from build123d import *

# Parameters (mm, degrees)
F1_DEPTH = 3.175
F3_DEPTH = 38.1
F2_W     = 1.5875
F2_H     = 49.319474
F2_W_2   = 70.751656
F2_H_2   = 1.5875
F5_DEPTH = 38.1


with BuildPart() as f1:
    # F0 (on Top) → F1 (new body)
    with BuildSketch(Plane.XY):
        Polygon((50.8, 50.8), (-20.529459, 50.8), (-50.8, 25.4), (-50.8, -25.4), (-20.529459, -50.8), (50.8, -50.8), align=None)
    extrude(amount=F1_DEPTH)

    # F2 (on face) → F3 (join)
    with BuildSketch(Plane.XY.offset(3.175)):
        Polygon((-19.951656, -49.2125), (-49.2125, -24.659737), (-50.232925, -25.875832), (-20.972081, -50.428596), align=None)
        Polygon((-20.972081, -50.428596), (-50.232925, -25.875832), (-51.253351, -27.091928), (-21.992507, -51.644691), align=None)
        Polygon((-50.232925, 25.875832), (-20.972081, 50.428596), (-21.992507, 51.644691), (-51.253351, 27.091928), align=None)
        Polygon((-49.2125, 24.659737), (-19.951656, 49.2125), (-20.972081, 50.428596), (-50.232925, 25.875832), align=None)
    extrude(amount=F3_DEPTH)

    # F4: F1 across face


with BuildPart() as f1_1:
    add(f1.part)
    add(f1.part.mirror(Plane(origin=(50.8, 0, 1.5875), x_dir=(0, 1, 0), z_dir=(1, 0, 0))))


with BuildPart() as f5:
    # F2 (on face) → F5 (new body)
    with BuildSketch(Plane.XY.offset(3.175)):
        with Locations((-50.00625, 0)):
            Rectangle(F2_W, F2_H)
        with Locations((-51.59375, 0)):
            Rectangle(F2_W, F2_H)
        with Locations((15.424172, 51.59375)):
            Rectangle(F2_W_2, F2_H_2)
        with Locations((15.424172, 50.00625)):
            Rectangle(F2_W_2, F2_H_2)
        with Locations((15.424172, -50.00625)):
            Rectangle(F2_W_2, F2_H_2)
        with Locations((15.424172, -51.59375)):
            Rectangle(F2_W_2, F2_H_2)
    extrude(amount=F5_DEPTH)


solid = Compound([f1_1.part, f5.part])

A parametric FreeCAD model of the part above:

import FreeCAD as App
import Part
import Sketcher
Q = App.Units.Quantity

doc = App.newDocument("Part")
body = doc.addObject("PartDesign::Body", "Body")

sketch1 = body.newObject("Sketcher::SketchObject", "Sketch")
sketch1.AttachmentSupport = (doc.getObject("XY_Plane"), [""])
sketch1.MapMode = "FlatFace"
sketch1.addGeometry(Part.LineSegment(App.Vector(51, 51, 0), App.Vector(-21, 51, 0)), False)
sketch1.addGeometry(Part.LineSegment(App.Vector(-21, 51, 0), App.Vector(-51, 25, 0)), False)
sketch1.addGeometry(Part.LineSegment(App.Vector(-51, 25, 0), App.Vector(-51, -25, 0)), False)
sketch1.addGeometry(Part.LineSegment(App.Vector(-51, -25, 0), App.Vector(-21, -51, 0)), False)
sketch1.addGeometry(Part.LineSegment(App.Vector(-21, -51, 0), App.Vector(51, -51, 0)), False)
sketch1.addGeometry(Part.LineSegment(App.Vector(51, -51, 0), App.Vector(51, 51, 0)), False)
sketch1.addConstraint(Sketcher.Constraint("Coincident", 0, 2, 1, 1))
sketch1.addConstraint(Sketcher.Constraint("Coincident", 1, 2, 2, 1))
sketch1.addConstraint(Sketcher.Constraint("Coincident", 2, 2, 3, 1))
sketch1.addConstraint(Sketcher.Constraint("Coincident", 3, 2, 4, 1))
sketch1.addConstraint(Sketcher.Constraint("Coincident", 4, 2, 5, 1))
sketch1.addConstraint(Sketcher.Constraint("Coincident", 5, 2, 0, 1))
sketch1.addConstraint(Sketcher.Constraint("Horizontal", 0))
sketch1.addConstraint(Sketcher.Constraint("Vertical", 2))
sketch1.addConstraint(Sketcher.Constraint("Horizontal", 4))
sketch1.addConstraint(Sketcher.Constraint("Vertical", 5))
sketch1.addConstraint(Sketcher.Constraint("Symmetric", 0, 2, 3, 2, -1))
sketch1.addConstraint(Sketcher.Constraint("Equal", 1, 3))
sketch1.addConstraint(Sketcher.Constraint("DistanceY", 2, 2, 2, 1, Q("2 in")))
sketch1.addConstraint(Sketcher.Constraint("DistanceY", 5, 1, 5, 2, Q("4 in")))
sketch1.addConstraint(Sketcher.Constraint("DistanceX", 1, 2, -1, 1, Q("2 in")))
sketch1.addConstraint(Sketcher.Constraint("DistanceX", -1, 1, 4, 2, Q("2 in")))
sketch1.addConstraint(Sketcher.Constraint("Angle", 1, Q("-140 deg")))
pad1 = body.newObject("PartDesign::Pad", "Pad")
pad1.Profile = sketch1
pad1.Length = Q("0.125 in")

sketch2 = body.newObject("Sketcher::SketchObject", "Sketch001")
sketch2.AttachmentSupport = (doc.getObject("XY_Plane"), [""])
sketch2.MapMode = "FlatFace"
sketch2.AttachmentOffset = App.Placement(App.Vector(0, 0, 0.125 * 25.4), App.Rotation())
sketch2.addGeometry(Part.LineSegment(App.Vector(-20, -49.2, 0), App.Vector(-49.2, -24.7, 0)), False)
sketch2.addGeometry(Part.LineSegment(App.Vector(-49.2, -24.7, 0), App.Vector(-50.2, -25.9, 0)), False)
sketch2.addGeometry(Part.LineSegment(App.Vector(-50.2, -25.9, 0), App.Vector(-51.3, -27.1, 0)), False)
sketch2.addGeometry(Part.LineSegment(App.Vector(-51.3, -27.1, 0), App.Vector(-22, -51.6, 0)), False)
sketch2.addGeometry(Part.LineSegment(App.Vector(-22, -51.6, 0), App.Vector(-21, -50.4, 0)), False)
sketch2.addGeometry(Part.LineSegment(App.Vector(-21, -50.4, 0), App.Vector(-20, -49.2, 0)), False)
sketch2.addGeometry(Part.LineSegment(App.Vector(-21, 50.4, 0), App.Vector(-22, 51.6, 0)), False)
sketch2.addGeometry(Part.LineSegment(App.Vector(-22, 51.6, 0), App.Vector(-51.3, 27.1, 0)), False)
sketch2.addGeometry(Part.LineSegment(App.Vector(-51.3, 27.1, 0), App.Vector(-50.2, 25.9, 0)), False)
sketch2.addGeometry(Part.LineSegment(App.Vector(-50.2, 25.9, 0), App.Vector(-49.2, 24.7, 0)), False)
sketch2.addGeometry(Part.LineSegment(App.Vector(-49.2, 24.7, 0), App.Vector(-20, 49.2, 0)), False)
sketch2.addGeometry(Part.LineSegment(App.Vector(-20, 49.2, 0), App.Vector(-21, 50.4, 0)), False)
sketch2.addConstraint(Sketcher.Constraint("Coincident", 0, 2, 1, 1))
sketch2.addConstraint(Sketcher.Constraint("Coincident", 1, 2, 2, 1))
sketch2.addConstraint(Sketcher.Constraint("Coincident", 2, 2, 3, 1))
sketch2.addConstraint(Sketcher.Constraint("Coincident", 3, 2, 4, 1))
sketch2.addConstraint(Sketcher.Constraint("Coincident", 4, 2, 5, 1))
sketch2.addConstraint(Sketcher.Constraint("Coincident", 5, 2, 0, 1))
sketch2.addConstraint(Sketcher.Constraint("Coincident", 6, 2, 7, 1))
sketch2.addConstraint(Sketcher.Constraint("Coincident", 7, 2, 8, 1))
sketch2.addConstraint(Sketcher.Constraint("Coincident", 8, 2, 9, 1))
sketch2.addConstraint(Sketcher.Constraint("Coincident", 9, 2, 10, 1))
sketch2.addConstraint(Sketcher.Constraint("Coincident", 10, 2, 11, 1))
sketch2.addConstraint(Sketcher.Constraint("Coincident", 11, 2, 6, 1))
sketch2.addConstraint(Sketcher.Constraint("Symmetric", 3, 2, 6, 2, -1))
sketch2.addConstraint(Sketcher.Constraint("Symmetric", 2, 2, 7, 2, -1))
sketch2.addConstraint(Sketcher.Constraint("Symmetric", 1, 2, 8, 2, -1))
sketch2.addConstraint(Sketcher.Constraint("Symmetric", 0, 2, 9, 2, -1))
sketch2.addConstraint(Sketcher.Constraint("Symmetric", 5, 2, 10, 2, -1))
sketch2.addConstraint(Sketcher.Constraint("Symmetric", 4, 2, 11, 2, -1))
sketch2.addConstraint(Sketcher.Constraint("Perpendicular", 0, 1))
sketch2.addConstraint(Sketcher.Constraint("Parallel", 1, 2))
sketch2.addConstraint(Sketcher.Constraint("Perpendicular", 2, 3))
sketch2.addConstraint(Sketcher.Constraint("Perpendicular", 3, 4))
sketch2.addConstraint(Sketcher.Constraint("Parallel", 4, 5))
sketch2.addConstraint(Sketcher.Constraint("Equal", 1, 2))
sketch2.addConstraint(Sketcher.Constraint("Equal", 2, 4))
sketch2.addConstraint(Sketcher.Constraint("Angle", 0, Q("140 deg")))
sketch2.addConstraint(Sketcher.Constraint("Distance", 1, Q("0.0625 in")))
sketch2.addConstraint(Sketcher.Constraint("DistanceX", 0, 2, -1, 1, Q("1.9375 in")))
sketch2.addConstraint(Sketcher.Constraint("DistanceY", 5, 2, -1, 1, Q("1.9375 in")))
sketch2.addConstraint(Sketcher.Constraint("Distance", 0, 38.197319))
pad2 = body.newObject("PartDesign::Pad", "Pad001")
pad2.Profile = sketch2
pad2.Length = Q("1.5 in")
body2 = doc.addObject("PartDesign::Body", "Body001")
doc.recompute()

body2.BaseFeature = body
doc.recompute()

mirroring = doc.addObject("Part::Mirroring", "Mirroring")
mirroring.Source = body
mirroring.Base = App.Vector(50.8, 0, 1.5875)
mirroring.Normal = App.Vector(1, 0, 0)
body3 = doc.addObject("PartDesign::Body", "Body002")
body3.BaseFeature = mirroring
boolean = body2.newObject("PartDesign::Boolean", "Boolean")
boolean.Type = "Fuse"
boolean.addObjects([body3])
doc.recompute()
body4 = doc.addObject("PartDesign::Body", "Body003")
body4.AllowCompound = True

sketch3 = body4.newObject("Sketcher::SketchObject", "Sketch002")
sketch3.AttachmentSupport = (doc.getObject("XY_Plane003"), [""])
sketch3.MapMode = "FlatFace"
sketch3.AttachmentOffset = App.Placement(App.Vector(0, 0, 0.125 * 25.4), App.Rotation())
sketch3.addGeometry(Part.LineSegment(App.Vector(-49.2, -24.7, 0), App.Vector(-49.2, 24.7, 0)), False)
sketch3.addGeometry(Part.LineSegment(App.Vector(-49.2, 24.7, 0), App.Vector(-52.4, 24.7, 0)), False)
sketch3.addGeometry(Part.LineSegment(App.Vector(-52.4, 24.7, 0), App.Vector(-52.4, -24.7, 0)), False)
sketch3.addGeometry(Part.LineSegment(App.Vector(-52.4, -24.7, 0), App.Vector(-49.2, -24.7, 0)), False)
sketch3.addGeometry(Part.LineSegment(App.Vector(-20, 52.4, 0), App.Vector(-20, 49.2, 0)), False)
sketch3.addGeometry(Part.LineSegment(App.Vector(-20, 49.2, 0), App.Vector(50.8, 49.2, 0)), False)
sketch3.addGeometry(Part.LineSegment(App.Vector(50.8, 49.2, 0), App.Vector(50.8, 52.4, 0)), False)
sketch3.addGeometry(Part.LineSegment(App.Vector(50.8, 52.4, 0), App.Vector(-20, 52.4, 0)), False)
sketch3.addGeometry(Part.LineSegment(App.Vector(-20, -49.2, 0), App.Vector(-20, -52.4, 0)), False)
sketch3.addGeometry(Part.LineSegment(App.Vector(-20, -52.4, 0), App.Vector(50.8, -52.4, 0)), False)
sketch3.addGeometry(Part.LineSegment(App.Vector(50.8, -52.4, 0), App.Vector(50.8, -49.2, 0)), False)
sketch3.addGeometry(Part.LineSegment(App.Vector(50.8, -49.2, 0), App.Vector(-20, -49.2, 0)), False)
sketch3.addConstraint(Sketcher.Constraint("Coincident", 0, 2, 1, 1))
sketch3.addConstraint(Sketcher.Constraint("Coincident", 1, 2, 2, 1))
sketch3.addConstraint(Sketcher.Constraint("Coincident", 2, 2, 3, 1))
sketch3.addConstraint(Sketcher.Constraint("Coincident", 3, 2, 0, 1))
sketch3.addConstraint(Sketcher.Constraint("Coincident", 4, 2, 5, 1))
sketch3.addConstraint(Sketcher.Constraint("Coincident", 5, 2, 6, 1))
sketch3.addConstraint(Sketcher.Constraint("Coincident", 6, 2, 7, 1))
sketch3.addConstraint(Sketcher.Constraint("Coincident", 7, 2, 4, 1))
sketch3.addConstraint(Sketcher.Constraint("Coincident", 8, 2, 9, 1))
sketch3.addConstraint(Sketcher.Constraint("Coincident", 9, 2, 10, 1))
sketch3.addConstraint(Sketcher.Constraint("Coincident", 10, 2, 11, 1))
sketch3.addConstraint(Sketcher.Constraint("Coincident", 11, 2, 8, 1))
sketch3.addConstraint(Sketcher.Constraint("Vertical", 0))
sketch3.addConstraint(Sketcher.Constraint("Horizontal", 1))
sketch3.addConstraint(Sketcher.Constraint("Vertical", 2))
sketch3.addConstraint(Sketcher.Constraint("Horizontal", 3))
sketch3.addConstraint(Sketcher.Constraint("Vertical", 4))
sketch3.addConstraint(Sketcher.Constraint("Horizontal", 5))
sketch3.addConstraint(Sketcher.Constraint("Vertical", 6))
sketch3.addConstraint(Sketcher.Constraint("Horizontal", 7))
sketch3.addConstraint(Sketcher.Constraint("Vertical", 8))
sketch3.addConstraint(Sketcher.Constraint("Horizontal", 9))
sketch3.addConstraint(Sketcher.Constraint("Vertical", 10))
sketch3.addConstraint(Sketcher.Constraint("Horizontal", 11))
sketch3.addConstraint(Sketcher.Constraint("Symmetric", 7, 2, 8, 2, -1))
sketch3.addConstraint(Sketcher.Constraint("Symmetric", 5, 2, 10, 2, -1))
sketch3.addConstraint(Sketcher.Constraint("Equal", 3, 4))
sketch3.addConstraint(Sketcher.Constraint("DistanceX", -1, 1, 5, 2, Q("2 in")))
sketch3.addConstraint(Sketcher.Constraint("DistanceY", 8, 2, 4, 2, Q("4 in")))
sketch3.addConstraint(Sketcher.Constraint("DistanceX", 1, 2, 1, 1, Q("0.125 in")))
sketch3.addConstraint(Sketcher.Constraint("DistanceX", 0, 2, -1, 1, Q("1.9375 in")))
sketch3.addConstraint(Sketcher.Constraint("DistanceX", 5, 1, 5, 2, 70.751656))
sketch3.addConstraint(Sketcher.Constraint("DistanceY", 0, 1, 0, 2, 49.319474))
sketch3.addConstraint(Sketcher.Constraint("DistanceY", -1, 1, 0, 2, 24.659737))
pad3 = body4.newObject("PartDesign::Pad", "Pad002")
pad3.Profile = sketch3
pad3.Length = Q("1.5 in")
mirroring.Visibility = False

doc.recompute()
